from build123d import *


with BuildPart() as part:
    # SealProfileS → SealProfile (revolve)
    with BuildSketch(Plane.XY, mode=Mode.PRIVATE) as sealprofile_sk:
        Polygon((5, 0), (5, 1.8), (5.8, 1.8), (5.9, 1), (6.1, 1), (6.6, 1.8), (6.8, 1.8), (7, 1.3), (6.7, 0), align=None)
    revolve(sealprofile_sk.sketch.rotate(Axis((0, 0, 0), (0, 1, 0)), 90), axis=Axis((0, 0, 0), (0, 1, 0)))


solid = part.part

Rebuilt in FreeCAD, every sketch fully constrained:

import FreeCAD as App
import Part
import Sketcher


def add_polygon(sketch, points):
    """Adds a closed chain of lines whose ends are joined by coincident constraints."""
    first, n = sketch.GeometryCount, len(points)
    for a, b in zip(points, points[1:] + points[:1]):
        sketch.addGeometry(Part.LineSegment(App.Vector(*a, 0), App.Vector(*b, 0)), False)
    for i in range(n):
        sketch.addConstraint(Sketcher.Constraint("Coincident", first + i, 2, first + (i + 1) % n, 1))

doc = App.newDocument("Part")
body = doc.addObject("PartDesign::Body", "Body")

sketch1 = doc.addObject("Sketcher::SketchObject", "Sketch")
body.addObject(sketch1)
sketch1.AttachmentSupport = (doc.XY_Plane, [""])
sketch1.MapMode = "FlatFace"
add_polygon(sketch1, [(5, 1.8), (5, 0), (6.7, 0), (7, 1.3), (6.8, 1.8), (6.6, 1.8), (6.1, 1), (5.9, 1), (5.8, 1.8)])
sketch1.addConstraint(Sketcher.Constraint("Vertical", 0))
sketch1.addConstraint(Sketcher.Constraint("Horizontal", 1))
sketch1.addConstraint(Sketcher.Constraint("Horizontal", 4))
sketch1.addConstraint(Sketcher.Constraint("Horizontal", 6))
sketch1.addConstraint(Sketcher.Constraint("Horizontal", 8))
sketch1.addConstraint(Sketcher.Constraint("PointOnObject", 0, 2, -1))
sketch1.addConstraint(Sketcher.Constraint("Horizontal", 4, 2, 7, 2))
sketch1.addConstraint(Sketcher.Constraint("Equal", 4, 6))
sketch1.addConstraint(Sketcher.Constraint("DistanceX", 1, 1, 1, 2, 1.7))
sketch1.addConstraint(Sketcher.Constraint("DistanceX", 4, 2, 4, 1, 0.2))
sketch1.addConstraint(Sketcher.Constraint("DistanceX", 8, 2, 8, 1, 0.8))
sketch1.addConstraint(Sketcher.Constraint("DistanceY", 0, 2, 0, 1, 1.8))
sketch1.addConstraint(Sketcher.Constraint("DistanceX", -1, 1, 0, 2, 5.0))
sketch1.addConstraint(Sketcher.Constraint("DistanceX", -1, 1, 2, 2, 7.0))
sketch1.addConstraint(Sketcher.Constraint("DistanceY", -1, 1, 5, 2, 1.0))
sketch1.addConstraint(Sketcher.Constraint("DistanceX", 7, 2, 3, 2, 1.0))
sketch1.addConstraint(Sketcher.Constraint("DistanceY", -1, 1, 2, 2, 1.3))
sketch1.addConstraint(Sketcher.Constraint("DistanceX", -1, 1, 5, 2, 6.1))
revolution = doc.addObject("PartDesign::Revolution", "Revolution")
body.addObject(revolution)
revolution.Profile = sketch1
revolution.ReferenceAxis = (sketch1, ["V_Axis"])
revolution.Angle = 360

doc.recompute()
